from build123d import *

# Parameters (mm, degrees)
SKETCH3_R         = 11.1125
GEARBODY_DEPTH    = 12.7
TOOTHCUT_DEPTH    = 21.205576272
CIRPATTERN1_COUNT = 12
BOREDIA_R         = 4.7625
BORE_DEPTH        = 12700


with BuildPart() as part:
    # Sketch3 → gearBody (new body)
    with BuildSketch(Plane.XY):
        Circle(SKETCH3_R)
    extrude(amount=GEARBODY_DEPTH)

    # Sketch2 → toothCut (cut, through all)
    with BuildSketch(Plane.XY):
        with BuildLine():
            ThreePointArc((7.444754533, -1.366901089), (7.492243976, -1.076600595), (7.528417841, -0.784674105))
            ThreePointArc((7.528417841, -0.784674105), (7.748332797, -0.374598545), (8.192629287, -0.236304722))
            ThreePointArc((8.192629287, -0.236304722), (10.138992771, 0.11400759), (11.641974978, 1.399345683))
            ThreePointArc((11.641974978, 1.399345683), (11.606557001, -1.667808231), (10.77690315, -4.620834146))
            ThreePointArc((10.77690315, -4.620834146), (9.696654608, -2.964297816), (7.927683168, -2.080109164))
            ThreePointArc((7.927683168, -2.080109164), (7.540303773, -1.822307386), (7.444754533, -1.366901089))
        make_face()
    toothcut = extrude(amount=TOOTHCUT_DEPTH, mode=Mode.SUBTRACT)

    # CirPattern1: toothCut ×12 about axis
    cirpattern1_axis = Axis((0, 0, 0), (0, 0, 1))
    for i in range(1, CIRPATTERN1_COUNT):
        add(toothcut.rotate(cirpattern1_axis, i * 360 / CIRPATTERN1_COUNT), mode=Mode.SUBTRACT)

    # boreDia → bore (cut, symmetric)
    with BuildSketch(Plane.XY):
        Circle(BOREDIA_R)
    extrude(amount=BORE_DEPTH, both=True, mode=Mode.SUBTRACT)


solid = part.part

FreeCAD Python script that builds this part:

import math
import FreeCAD as App
import Part
import Sketcher
Q = App.Units.Quantity

doc = App.newDocument("Part")
body = doc.addObject("PartDesign::Body", "Body")

# Sketch on XY plane
sketch1 = body.newObject("Sketcher::SketchObject", "Sketch")
sketch1.AttachmentSupport = (doc.getObject("XY_Plane"), [""])
sketch1.MapMode = "FlatFace"
sketch1.addGeometry(Part.Circle(App.Vector(0, 0, 0), App.Vector(0, 0, 1), 11), False)
sketch1.addConstraint([
    Sketcher.Constraint("Coincident", 0, 3, -1, 1),
    Sketcher.Constraint("Diameter", 0, Q("0.875 in")),
])
pad1 = body.newObject("PartDesign::Pad", "Pad")
pad1.Profile = sketch1
pad1.Length = Q("0.5 in")

# Sketch on XY plane
sketch2 = body.newObject("Sketcher::SketchObject", "Sketch001")
sketch2.AttachmentSupport = (doc.getObject("XY_Plane"), [""])
sketch2.MapMode = "FlatFace"
sketch2.addGeometry([
    Part.ArcOfCircle(Part.Circle(App.Vector(0, 0, 0), App.Vector(0, 0, 1), 7.5692), math.radians(-10.403968), math.radians(-5.950356)),  # 0
    Part.ArcOfCircle(Part.Circle(App.Vector(8.049016, -1.477847, 0), App.Vector(0, 0, 1), 0.614363), math.radians(169.596032), math.radians(258.609528)),  # 1
    Part.ArcOfCircle(Part.Circle(App.Vector(7.181266, -5.785105, 0), App.Vector(0, 0, 1), 3.779435), math.radians(17.942004), math.radians(78.609528)),  # 2
    Part.ArcOfCircle(Part.Circle(App.Vector(0, 0, 0), App.Vector(0, 0, 1), 11.725773), math.radians(-23.208298), math.radians(6.853974)),  # 3
    Part.ArcOfCircle(Part.Circle(App.Vector(8.519653, 3.528956, 0), App.Vector(0, 0, 1), 3.779435), math.radians(-94.963851), math.radians(-34.296328)),  # 4
    Part.ArcOfCircle(Part.Circle(App.Vector(8.13947, -0.848363, 0), App.Vector(0, 0, 1), 0.614363), math.radians(85.036149), math.radians(174.049644)),  # 5
], False)
sketch2.addConstraint([
    Sketcher.Constraint("Coincident", 0, 1, 1, 1),
    Sketcher.Constraint("Coincident", 1, 2, 2, 2),
    Sketcher.Constraint("Coincident", 2, 1, 3, 1),
    Sketcher.Constraint("Coincident", 3, 2, 4, 2),
    Sketcher.Constraint("Coincident", 4, 1, 5, 1),
    Sketcher.Constraint("Coincident", 5, 2, 0, 2),
    Sketcher.Constraint("Coincident", 0, 3, -1, 1),
    Sketcher.Constraint("Coincident", 3, 3, -1, 1),
    Sketcher.Constraint("Radius", 0, Q("0.298 in")),
    Sketcher.Constraint("DistanceY", 5, 3, -1, 1, Q("0.0334001 in")),
    Sketcher.Constraint("Radius", 1, 0.614363),
    Sketcher.Constraint("Radius", 2, 3.779435),
    Sketcher.Constraint("Radius", 3, 11.725773),
    Sketcher.Constraint("Radius", 4, 3.779435),
    Sketcher.Constraint("Radius", 5, 0.614363),
    Sketcher.Constraint("DistanceY", 0, 1, -1, 1, 1.366901),
    Sketcher.Constraint("DistanceX", 0, 1, 4, 3, 1.074899),
    Sketcher.Constraint("DistanceX", 5, 2, 1, 3, 0.520598),
    Sketcher.Constraint("DistanceY", 1, 2, -1, 1, 2.080109),
    Sketcher.Constraint("DistanceX", -1, 1, 4, 1, 8.192629),
    Sketcher.Constraint("DistanceX", 2, 3, 1, 3, 0.86775),
    Sketcher.Constraint("DistanceY", 2, 3, 4, 3, 9.314061),
])
pocket1 = body.newObject("PartDesign::Pocket", "Pocket")
pocket1.Profile = sketch2
pocket1.Type = "ThroughAll"
pocket1.Reversed = True
doc.recompute()

polarpattern = body.newObject("PartDesign::PolarPattern", "PolarPattern")
polarpattern.Originals = [pocket1]
polarpattern.Axis = (doc.getObject("Z_Axis"), [""])
polarpattern.Angle = 360
polarpattern.Occurrences = 12
body.Tip = polarpattern

# Sketch on XY plane
sketch3 = body.newObject("Sketcher::SketchObject", "Sketch002")
sketch3.AttachmentSupport = (doc.getObject("XY_Plane"), [""])
sketch3.MapMode = "FlatFace"
sketch3.addGeometry(Part.Circle(App.Vector(0, 0, 0), App.Vector(0, 0, 1), 4.8), False)
sketch3.addConstraint([
    Sketcher.Constraint("Coincident", 0, 3, -1, 1),
    Sketcher.Constraint("Diameter", 0, Q("0.375 in")),
])
pocket2 = body.newObject("PartDesign::Pocket", "Pocket001")
pocket2.Profile = sketch3
pocket2.Length = Q("1000 in")
pocket2.Midplane = True

doc.recompute()
